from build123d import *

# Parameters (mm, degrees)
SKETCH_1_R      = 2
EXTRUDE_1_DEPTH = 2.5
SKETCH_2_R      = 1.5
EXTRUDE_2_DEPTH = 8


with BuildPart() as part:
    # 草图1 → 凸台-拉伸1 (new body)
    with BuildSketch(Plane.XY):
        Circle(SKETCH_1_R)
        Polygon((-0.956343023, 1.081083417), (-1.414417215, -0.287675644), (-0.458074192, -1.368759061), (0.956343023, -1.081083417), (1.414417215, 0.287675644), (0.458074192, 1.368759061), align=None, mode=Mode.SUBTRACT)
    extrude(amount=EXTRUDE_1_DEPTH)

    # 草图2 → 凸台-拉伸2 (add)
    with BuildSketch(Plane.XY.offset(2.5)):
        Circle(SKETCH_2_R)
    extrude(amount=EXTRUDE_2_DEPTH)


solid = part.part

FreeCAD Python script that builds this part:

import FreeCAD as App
import Part
import Sketcher

V = App.Vector

doc = App.newDocument("Part")
params = doc.addObject("Spreadsheet::Sheet", "Params")
for row, (alias, value) in enumerate([
    ("sketch1_diameter", "4 mm"),
    ("pad1_length", "2.5 mm"),
    ("sketch2_diameter", "3 mm"),
    ("pad2_length", "8 mm"),
], start=1):
    params.set(f"A{row}", alias)
    params.set(f"B{row}", "=" + value)
    params.setAlias(f"B{row}", alias)

body = doc.addObject("PartDesign::Body", "Body")

sketch1 = body.newObject("Sketcher::SketchObject", "Sketch")
sketch1.AttachmentSupport = (doc.getObject("XY_Plane"), [""])
sketch1.MapMode = "FlatFace"
sketch1.addGeometry(Part.Circle(V(0, 0, 0), V(0, 0, 1), 2), False)
sketch1.addGeometry(Part.LineSegment(V(-1.4, -0.3, 0), V(-1, 1.1, 0)), False)
sketch1.addGeometry(Part.LineSegment(V(-1, 1.1, 0), V(0.5, 1.4, 0)), False)
sketch1.addGeometry(Part.LineSegment(V(0.5, 1.4, 0), V(1.4, 0.3, 0)), False)
sketch1.addGeometry(Part.LineSegment(V(1.4, 0.3, 0), V(1, -1.1, 0)), False)
sketch1.addGeometry(Part.LineSegment(V(1, -1.1, 0), V(-0.5, -1.4, 0)), False)
sketch1.addGeometry(Part.LineSegment(V(-0.5, -1.4, 0), V(-1.4, -0.3, 0)), False)
sketch1.addConstraint(Sketcher.Constraint("Coincident", 1, 2, 2, 1))
sketch1.addConstraint(Sketcher.Constraint("Coincident", 2, 2, 3, 1))
sketch1.addConstraint(Sketcher.Constraint("Coincident", 3, 2, 4, 1))
sketch1.addConstraint(Sketcher.Constraint("Coincident", 4, 2, 5, 1))
sketch1.addConstraint(Sketcher.Constraint("Coincident", 5, 2, 6, 1))
sketch1.addConstraint(Sketcher.Constraint("Coincident", 6, 2, 1, 1))
sketch1.addConstraint(Sketcher.Constraint("Coincident", 0, 3, -1, 1))
sketch1.addConstraint(Sketcher.Constraint("Symmetric", 1, 2, 4, 2, -1, 1))
sketch1.addConstraint(Sketcher.Constraint("Symmetric", 2, 2, 5, 2, -1, 1))
sketch1.addConstraint(Sketcher.Constraint("Symmetric", 3, 2, 6, 2, -1, 1))
sketch1.addConstraint(Sketcher.Constraint("Equal", 1, 2))
sketch1.addConstraint(Sketcher.Constraint("Equal", 2, 3))
sketch1.addConstraint(Sketcher.Constraint("Diameter", 0, 4.0))
sketch1.addConstraint(Sketcher.Constraint("DistanceY", -1, 1, 2, 2, 1.368759))
sketch1.addConstraint(Sketcher.Constraint("DistanceX", 1, 2, 3, 2, 2.37076))
sketch1.addConstraint(Sketcher.Constraint("DistanceY", 4, 2, 3, 2, 1.368759))
sketch1.addConstraint(Sketcher.Constraint("DistanceX", 2, 2, 4, 2, 0.498269))
sketch1.setExpression("Constraints[12]", "Params.sketch1_diameter")
pad1 = body.newObject("PartDesign::Pad", "Pad")
pad1.Profile = sketch1
pad1.setExpression("Length", "Params.pad1_length")

sketch2 = body.newObject("Sketcher::SketchObject", "Sketch001")
sketch2.AttachmentSupport = (doc.getObject("XY_Plane"), [""])
sketch2.MapMode = "FlatFace"
sketch2.AttachmentOffset = App.Placement(V(0, 0, 2.5), App.Rotation())
sketch2.addGeometry(Part.Circle(V(0, 0, 0), V(0, 0, 1), 1.5), False)
sketch2.addConstraint(Sketcher.Constraint("Coincident", 0, 3, -1, 1))
sketch2.addConstraint(Sketcher.Constraint("Diameter", 0, 3.0))
sketch2.setExpression("Constraints[1]", "Params.sketch2_diameter")
pad2 = body.newObject("PartDesign::Pad", "Pad001")
pad2.Profile = sketch2
pad2.setExpression("Length", "Params.pad2_length")

doc.recompute()
